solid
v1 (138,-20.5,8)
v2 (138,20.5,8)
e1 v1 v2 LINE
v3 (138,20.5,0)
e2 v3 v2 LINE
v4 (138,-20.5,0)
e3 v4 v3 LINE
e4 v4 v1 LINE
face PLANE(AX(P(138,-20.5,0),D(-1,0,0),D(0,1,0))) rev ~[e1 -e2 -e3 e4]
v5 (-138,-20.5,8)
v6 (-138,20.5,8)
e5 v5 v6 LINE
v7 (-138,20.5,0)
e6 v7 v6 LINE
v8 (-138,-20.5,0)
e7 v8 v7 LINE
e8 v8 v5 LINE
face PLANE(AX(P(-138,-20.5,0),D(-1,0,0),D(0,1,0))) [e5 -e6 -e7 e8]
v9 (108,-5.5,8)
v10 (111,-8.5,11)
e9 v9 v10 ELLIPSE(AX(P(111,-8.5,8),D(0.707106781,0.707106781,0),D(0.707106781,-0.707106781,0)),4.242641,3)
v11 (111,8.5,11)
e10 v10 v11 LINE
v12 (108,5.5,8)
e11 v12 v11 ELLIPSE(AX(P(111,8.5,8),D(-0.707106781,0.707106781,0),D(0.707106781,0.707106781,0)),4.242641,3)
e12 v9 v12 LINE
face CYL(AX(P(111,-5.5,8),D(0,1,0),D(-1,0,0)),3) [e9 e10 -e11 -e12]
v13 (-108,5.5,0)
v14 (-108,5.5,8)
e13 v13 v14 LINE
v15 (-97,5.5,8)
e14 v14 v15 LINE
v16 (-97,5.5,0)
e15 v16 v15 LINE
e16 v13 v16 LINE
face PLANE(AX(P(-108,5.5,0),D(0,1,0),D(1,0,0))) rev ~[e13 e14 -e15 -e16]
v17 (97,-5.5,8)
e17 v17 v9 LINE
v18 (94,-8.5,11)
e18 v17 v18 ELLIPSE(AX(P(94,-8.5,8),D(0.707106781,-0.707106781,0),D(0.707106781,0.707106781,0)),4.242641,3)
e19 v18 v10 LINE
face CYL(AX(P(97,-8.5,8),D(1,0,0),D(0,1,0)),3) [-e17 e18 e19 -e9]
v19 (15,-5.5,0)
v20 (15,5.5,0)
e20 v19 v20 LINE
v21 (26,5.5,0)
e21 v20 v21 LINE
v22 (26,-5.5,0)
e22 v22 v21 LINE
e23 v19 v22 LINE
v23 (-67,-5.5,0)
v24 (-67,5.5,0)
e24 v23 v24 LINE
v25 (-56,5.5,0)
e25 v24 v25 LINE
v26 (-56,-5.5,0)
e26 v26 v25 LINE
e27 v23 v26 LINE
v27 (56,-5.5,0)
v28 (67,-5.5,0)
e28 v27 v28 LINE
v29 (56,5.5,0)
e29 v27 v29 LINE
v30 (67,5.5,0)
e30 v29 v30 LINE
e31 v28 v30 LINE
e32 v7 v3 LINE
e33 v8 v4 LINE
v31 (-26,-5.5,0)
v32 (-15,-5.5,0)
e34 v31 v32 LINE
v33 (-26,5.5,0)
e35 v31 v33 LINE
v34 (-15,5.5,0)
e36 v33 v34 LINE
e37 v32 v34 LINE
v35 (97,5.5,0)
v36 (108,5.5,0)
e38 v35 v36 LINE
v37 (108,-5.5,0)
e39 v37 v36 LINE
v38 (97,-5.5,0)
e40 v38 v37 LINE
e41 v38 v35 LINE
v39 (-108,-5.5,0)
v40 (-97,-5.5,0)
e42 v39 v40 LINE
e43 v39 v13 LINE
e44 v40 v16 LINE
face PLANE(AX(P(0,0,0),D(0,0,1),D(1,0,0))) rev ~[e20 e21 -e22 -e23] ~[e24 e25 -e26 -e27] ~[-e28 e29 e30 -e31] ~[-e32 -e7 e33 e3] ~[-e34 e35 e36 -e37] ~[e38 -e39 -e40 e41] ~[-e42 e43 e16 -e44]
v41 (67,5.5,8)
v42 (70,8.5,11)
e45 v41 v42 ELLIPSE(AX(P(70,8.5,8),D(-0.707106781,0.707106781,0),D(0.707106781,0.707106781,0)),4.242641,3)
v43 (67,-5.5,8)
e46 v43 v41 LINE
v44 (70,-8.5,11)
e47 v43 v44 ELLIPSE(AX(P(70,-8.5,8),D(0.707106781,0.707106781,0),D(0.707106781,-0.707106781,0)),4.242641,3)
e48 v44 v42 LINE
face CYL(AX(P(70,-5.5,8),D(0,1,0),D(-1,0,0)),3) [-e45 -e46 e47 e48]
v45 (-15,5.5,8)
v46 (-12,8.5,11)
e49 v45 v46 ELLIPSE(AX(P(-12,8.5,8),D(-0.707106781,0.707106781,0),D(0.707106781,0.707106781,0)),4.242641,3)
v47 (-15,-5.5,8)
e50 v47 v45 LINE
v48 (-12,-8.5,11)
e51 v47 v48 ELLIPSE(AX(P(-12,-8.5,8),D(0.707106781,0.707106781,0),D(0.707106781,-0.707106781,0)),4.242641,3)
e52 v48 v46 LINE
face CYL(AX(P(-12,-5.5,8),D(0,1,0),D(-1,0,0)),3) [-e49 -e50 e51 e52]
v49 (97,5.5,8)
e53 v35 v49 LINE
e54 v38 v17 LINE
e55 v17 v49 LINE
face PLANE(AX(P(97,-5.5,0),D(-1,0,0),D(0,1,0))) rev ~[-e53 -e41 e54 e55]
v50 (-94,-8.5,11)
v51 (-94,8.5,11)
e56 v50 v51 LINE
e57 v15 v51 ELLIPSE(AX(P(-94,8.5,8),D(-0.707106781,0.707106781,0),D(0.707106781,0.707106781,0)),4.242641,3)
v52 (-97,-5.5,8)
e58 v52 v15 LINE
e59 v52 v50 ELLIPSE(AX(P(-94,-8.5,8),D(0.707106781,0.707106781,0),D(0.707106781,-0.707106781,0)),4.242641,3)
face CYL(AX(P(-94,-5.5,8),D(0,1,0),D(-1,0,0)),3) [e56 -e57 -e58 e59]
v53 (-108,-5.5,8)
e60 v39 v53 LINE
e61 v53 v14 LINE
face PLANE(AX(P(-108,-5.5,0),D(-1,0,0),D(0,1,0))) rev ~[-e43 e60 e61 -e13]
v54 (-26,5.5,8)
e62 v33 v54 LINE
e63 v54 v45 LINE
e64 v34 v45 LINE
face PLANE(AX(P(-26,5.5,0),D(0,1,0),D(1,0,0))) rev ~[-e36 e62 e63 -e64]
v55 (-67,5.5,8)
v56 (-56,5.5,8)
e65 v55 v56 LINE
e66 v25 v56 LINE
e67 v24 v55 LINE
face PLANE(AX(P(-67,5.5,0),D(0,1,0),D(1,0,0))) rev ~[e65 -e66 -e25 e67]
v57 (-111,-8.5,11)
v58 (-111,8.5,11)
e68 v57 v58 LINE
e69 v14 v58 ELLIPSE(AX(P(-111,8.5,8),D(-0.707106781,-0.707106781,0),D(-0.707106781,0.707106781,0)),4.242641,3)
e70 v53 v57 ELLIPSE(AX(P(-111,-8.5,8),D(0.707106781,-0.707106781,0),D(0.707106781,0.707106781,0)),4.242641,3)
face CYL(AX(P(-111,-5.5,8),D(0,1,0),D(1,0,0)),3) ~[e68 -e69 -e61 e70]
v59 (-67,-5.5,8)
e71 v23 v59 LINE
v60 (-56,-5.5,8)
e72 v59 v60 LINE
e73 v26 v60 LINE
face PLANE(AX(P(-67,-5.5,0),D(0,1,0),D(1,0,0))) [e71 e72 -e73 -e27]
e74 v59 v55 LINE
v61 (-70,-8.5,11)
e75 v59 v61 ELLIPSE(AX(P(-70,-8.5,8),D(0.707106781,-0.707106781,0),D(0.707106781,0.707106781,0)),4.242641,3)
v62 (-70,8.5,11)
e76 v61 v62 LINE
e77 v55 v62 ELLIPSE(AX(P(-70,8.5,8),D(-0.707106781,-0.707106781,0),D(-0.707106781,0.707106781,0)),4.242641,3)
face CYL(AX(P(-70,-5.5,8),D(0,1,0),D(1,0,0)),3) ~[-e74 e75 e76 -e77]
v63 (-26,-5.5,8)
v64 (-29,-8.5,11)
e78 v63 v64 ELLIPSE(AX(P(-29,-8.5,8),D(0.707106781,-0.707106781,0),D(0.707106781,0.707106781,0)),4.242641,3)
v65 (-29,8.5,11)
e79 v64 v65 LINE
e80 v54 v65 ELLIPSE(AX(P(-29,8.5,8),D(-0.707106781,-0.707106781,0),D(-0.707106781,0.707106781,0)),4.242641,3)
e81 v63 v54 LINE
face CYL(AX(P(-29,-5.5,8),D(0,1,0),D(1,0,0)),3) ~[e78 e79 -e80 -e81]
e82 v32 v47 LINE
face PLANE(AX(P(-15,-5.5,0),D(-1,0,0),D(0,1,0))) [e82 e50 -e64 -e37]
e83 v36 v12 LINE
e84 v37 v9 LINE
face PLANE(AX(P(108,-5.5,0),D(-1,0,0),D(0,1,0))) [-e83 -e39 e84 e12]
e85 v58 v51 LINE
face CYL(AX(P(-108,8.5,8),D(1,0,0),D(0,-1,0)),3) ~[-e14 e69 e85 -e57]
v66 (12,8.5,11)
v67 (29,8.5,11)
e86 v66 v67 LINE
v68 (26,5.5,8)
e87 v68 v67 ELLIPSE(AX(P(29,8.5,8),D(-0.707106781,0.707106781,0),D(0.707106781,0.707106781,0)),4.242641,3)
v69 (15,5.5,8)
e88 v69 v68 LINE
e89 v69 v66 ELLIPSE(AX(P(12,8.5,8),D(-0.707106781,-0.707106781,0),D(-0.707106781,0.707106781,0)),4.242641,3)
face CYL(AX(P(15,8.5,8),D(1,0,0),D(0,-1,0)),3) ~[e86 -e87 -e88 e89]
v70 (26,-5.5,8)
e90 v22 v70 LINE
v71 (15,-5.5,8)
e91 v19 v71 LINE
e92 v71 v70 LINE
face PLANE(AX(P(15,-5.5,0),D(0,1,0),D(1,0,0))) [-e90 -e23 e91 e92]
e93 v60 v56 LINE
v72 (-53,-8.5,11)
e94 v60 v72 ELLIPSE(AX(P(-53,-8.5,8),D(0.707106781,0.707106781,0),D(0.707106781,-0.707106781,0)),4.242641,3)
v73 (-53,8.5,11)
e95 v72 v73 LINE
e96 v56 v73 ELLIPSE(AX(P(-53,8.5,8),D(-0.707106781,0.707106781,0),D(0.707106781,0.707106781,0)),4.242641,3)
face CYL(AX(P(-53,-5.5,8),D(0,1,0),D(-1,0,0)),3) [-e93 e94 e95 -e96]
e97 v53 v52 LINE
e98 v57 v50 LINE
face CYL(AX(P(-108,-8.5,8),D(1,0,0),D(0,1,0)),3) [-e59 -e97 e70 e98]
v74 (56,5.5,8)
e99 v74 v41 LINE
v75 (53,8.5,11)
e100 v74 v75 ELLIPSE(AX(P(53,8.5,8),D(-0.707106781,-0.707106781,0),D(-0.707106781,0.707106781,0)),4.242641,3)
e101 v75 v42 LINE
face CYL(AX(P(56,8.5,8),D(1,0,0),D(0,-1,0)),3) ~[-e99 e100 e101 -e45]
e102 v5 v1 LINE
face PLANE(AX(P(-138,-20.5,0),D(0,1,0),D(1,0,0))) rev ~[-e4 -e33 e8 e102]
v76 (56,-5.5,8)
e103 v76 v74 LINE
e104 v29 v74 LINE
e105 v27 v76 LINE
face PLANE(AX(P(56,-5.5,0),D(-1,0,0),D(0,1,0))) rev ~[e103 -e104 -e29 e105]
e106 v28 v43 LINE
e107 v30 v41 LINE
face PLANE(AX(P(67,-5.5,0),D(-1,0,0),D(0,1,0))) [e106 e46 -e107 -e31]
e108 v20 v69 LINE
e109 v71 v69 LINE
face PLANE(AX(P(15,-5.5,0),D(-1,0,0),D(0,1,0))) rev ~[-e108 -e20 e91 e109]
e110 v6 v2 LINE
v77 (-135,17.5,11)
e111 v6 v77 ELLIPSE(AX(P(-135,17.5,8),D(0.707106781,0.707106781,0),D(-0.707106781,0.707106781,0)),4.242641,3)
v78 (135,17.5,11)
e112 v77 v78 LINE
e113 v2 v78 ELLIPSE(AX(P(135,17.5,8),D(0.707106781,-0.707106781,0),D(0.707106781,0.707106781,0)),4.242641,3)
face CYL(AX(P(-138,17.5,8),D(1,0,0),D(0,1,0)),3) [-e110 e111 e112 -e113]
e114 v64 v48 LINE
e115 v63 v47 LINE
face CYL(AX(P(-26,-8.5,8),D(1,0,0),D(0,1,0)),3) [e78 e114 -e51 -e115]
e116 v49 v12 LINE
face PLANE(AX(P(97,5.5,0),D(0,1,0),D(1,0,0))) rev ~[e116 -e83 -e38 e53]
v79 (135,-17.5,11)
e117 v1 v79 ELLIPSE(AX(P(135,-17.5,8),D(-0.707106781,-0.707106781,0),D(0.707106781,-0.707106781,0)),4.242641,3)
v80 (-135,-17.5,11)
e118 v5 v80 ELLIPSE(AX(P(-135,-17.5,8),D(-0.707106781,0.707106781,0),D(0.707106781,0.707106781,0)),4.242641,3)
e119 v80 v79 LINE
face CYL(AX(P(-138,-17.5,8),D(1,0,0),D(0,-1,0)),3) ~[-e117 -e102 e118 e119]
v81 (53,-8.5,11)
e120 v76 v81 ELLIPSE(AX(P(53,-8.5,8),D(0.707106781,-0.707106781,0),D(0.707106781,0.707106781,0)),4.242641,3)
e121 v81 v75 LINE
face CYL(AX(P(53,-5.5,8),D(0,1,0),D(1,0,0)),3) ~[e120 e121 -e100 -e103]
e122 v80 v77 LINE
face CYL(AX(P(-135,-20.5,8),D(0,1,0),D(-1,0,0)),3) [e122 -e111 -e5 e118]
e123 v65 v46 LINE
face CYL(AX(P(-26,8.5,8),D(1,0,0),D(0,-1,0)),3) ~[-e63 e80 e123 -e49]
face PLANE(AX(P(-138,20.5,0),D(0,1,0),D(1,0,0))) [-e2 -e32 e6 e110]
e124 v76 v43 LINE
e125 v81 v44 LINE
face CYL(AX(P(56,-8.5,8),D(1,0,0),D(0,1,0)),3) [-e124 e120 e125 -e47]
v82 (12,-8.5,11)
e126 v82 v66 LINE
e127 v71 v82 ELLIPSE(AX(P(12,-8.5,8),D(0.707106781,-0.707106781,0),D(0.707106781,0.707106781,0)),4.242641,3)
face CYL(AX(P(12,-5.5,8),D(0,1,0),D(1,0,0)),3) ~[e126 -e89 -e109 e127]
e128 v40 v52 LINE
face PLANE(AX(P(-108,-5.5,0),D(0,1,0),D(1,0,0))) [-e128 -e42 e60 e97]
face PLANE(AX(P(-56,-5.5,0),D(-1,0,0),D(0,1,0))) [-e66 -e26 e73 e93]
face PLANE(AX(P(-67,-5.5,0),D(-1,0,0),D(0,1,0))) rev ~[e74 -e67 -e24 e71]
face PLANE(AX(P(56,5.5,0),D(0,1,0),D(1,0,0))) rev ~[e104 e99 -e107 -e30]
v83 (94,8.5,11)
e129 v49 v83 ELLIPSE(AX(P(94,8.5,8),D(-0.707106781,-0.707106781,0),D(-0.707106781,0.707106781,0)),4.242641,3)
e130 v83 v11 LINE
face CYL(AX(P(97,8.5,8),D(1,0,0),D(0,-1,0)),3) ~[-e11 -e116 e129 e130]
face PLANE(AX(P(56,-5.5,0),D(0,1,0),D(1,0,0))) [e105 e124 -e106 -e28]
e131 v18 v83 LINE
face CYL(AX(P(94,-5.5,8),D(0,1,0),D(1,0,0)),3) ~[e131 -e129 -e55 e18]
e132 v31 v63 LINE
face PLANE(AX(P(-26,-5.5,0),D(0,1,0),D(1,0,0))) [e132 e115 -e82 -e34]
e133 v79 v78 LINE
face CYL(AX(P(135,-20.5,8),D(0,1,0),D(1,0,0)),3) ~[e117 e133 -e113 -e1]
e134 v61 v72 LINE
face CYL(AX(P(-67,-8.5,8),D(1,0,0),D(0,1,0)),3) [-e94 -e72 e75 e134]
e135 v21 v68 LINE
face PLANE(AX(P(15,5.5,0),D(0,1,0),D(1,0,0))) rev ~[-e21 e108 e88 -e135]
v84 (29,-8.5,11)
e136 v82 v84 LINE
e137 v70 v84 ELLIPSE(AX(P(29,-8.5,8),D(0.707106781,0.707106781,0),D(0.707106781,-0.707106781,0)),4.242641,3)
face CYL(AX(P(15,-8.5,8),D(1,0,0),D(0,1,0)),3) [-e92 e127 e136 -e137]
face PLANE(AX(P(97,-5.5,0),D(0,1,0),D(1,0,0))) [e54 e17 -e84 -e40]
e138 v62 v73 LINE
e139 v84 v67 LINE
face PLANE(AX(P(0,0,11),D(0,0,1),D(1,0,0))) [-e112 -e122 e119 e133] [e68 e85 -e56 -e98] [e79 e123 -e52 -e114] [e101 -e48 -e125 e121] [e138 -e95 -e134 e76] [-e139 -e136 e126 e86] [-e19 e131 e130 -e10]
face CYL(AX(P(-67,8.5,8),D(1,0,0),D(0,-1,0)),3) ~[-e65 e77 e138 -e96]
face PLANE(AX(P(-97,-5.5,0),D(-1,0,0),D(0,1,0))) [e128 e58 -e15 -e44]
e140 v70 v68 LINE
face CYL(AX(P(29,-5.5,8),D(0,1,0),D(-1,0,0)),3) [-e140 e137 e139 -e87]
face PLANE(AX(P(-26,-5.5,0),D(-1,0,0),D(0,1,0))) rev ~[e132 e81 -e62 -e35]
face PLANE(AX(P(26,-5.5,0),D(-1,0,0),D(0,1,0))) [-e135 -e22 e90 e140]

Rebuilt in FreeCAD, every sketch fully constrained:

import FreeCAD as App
import Part
import Sketcher

V = App.Vector


def edges_at(feature, points):
    """Names of the edges that pass closest to the given points."""
    edges = feature.Shape.Edges
    near = lambda p: min(range(len(edges)), key=lambda i: edges[i].distToShape(Part.Vertex(*p))[0])
    return sorted({f"Edge{near(p) + 1}" for p in points})


def add_polygon(sketch, points):
    """Adds a closed chain of lines whose ends are joined by coincident constraints."""
    first, n = sketch.GeometryCount, len(points)
    for a, b in zip(points, points[1:] + points[:1]):
        sketch.addGeometry(Part.LineSegment(App.Vector(*a, 0), App.Vector(*b, 0)), False)
    for i in range(n):
        sketch.addConstraint(Sketcher.Constraint("Coincident", first + i, 2, first + (i + 1) % n, 1))

doc = App.newDocument("Part")
body = doc.addObject("PartDesign::Body", "Body")

sketch1 = body.newObject("Sketcher::SketchObject", "Sketch")
sketch1.AttachmentSupport = (doc.getObject("XY_Plane"), [""])
sketch1.MapMode = "FlatFace"
add_polygon(sketch1, [(-138, 20.5), (-138, -20.5), (138, -20.5), (138, 20.5)])
add_polygon(sketch1, [(-97, -5.5), (-108, -5.5), (-108, 5.5), (-97, 5.5)])
add_polygon(sketch1, [(-56, -5.5), (-67, -5.5), (-67, 5.5), (-56, 5.5)])
add_polygon(sketch1, [(-15, -5.5), (-26, -5.5), (-26, 5.5), (-15, 5.5)])
add_polygon(sketch1, [(26, -5.5), (15, -5.5), (15, 5.5), (26, 5.5)])
add_polygon(sketch1, [(67, -5.5), (56, -5.5), (56, 5.5), (67, 5.5)])
add_polygon(sketch1, [(108, -5.5), (97, -5.5), (97, 5.5), (108, 5.5)])
sketch1.addConstraint([
    Sketcher.Constraint("Vertical", 0),
    Sketcher.Constraint("Horizontal", 1),
    Sketcher.Constraint("Vertical", 2),
    Sketcher.Constraint("Horizontal", 3),
    Sketcher.Constraint("Horizontal", 4),
    Sketcher.Constraint("Vertical", 5),
    Sketcher.Constraint("Horizontal", 6),
    Sketcher.Constraint("Vertical", 7),
    Sketcher.Constraint("Horizontal", 8),
    Sketcher.Constraint("Vertical", 9),
    Sketcher.Constraint("Horizontal", 10),
    Sketcher.Constraint("Vertical", 11),
    Sketcher.Constraint("Horizontal", 12),
    Sketcher.Constraint("Vertical", 13),
    Sketcher.Constraint("Horizontal", 14),
    Sketcher.Constraint("Vertical", 15),
    Sketcher.Constraint("Horizontal", 16),
    Sketcher.Constraint("Vertical", 17),
    Sketcher.Constraint("Horizontal", 18),
    Sketcher.Constraint("Vertical", 19),
    Sketcher.Constraint("Horizontal", 20),
    Sketcher.Constraint("Vertical", 21),
    Sketcher.Constraint("Horizontal", 22),
    Sketcher.Constraint("Vertical", 23),
    Sketcher.Constraint("Horizontal", 24),
    Sketcher.Constraint("Vertical", 25),
    Sketcher.Constraint("Horizontal", 26),
    Sketcher.Constraint("Vertical", 27),
    Sketcher.Constraint("Symmetric", 0, 2, 2, 2, -1, 1),
    Sketcher.Constraint("Symmetric", 14, 2, 16, 2, -1, 1),
    Sketcher.Constraint("Symmetric", 12, 2, 18, 2, -1, 1),
    Sketcher.Constraint("Symmetric", 10, 2, 20, 2, -1, 1),
    Sketcher.Constraint("Symmetric", 8, 2, 22, 2, -1, 1),
    Sketcher.Constraint("Symmetric", 6, 2, 24, 2, -1, 1),
    Sketcher.Constraint("Symmetric", 4, 2, 26, 2, -1, 1),
    Sketcher.Constraint("Horizontal", 7, 2, 8, 2),
    Sketcher.Constraint("Horizontal", 6, 2, 9, 2),
    Sketcher.Constraint("Horizontal", 11, 2, 12, 2),
    Sketcher.Constraint("Horizontal", 10, 2, 13, 2),
    Sketcher.Constraint("Horizontal", 15, 2, 16, 2),
    Sketcher.Constraint("Equal", 6, 8),
    Sketcher.Constraint("Equal", 10, 12),
    Sketcher.Constraint("Equal", 26, 5),
    Sketcher.Constraint("DistanceX", 1, 1, 1, 2, 276.0),
    Sketcher.Constraint("DistanceX", 4, 2, 4, 1, 11.0),
    Sketcher.Constraint("DistanceY", 0, 2, 0, 1, 41.0),
    Sketcher.Constraint("DistanceX", 4, 2, -1, 1, 108.0),
    Sketcher.Constraint("DistanceX", 8, 2, -1, 1, 67.0),
    Sketcher.Constraint("DistanceX", 12, 2, -1, 1, 26.0),
])
pad1 = body.newObject("PartDesign::Pad", "Pad")
pad1.Profile = sketch1
pad1.Length = 11
doc.recompute()

fillet = body.newObject("PartDesign::Fillet", "Fillet")
fillet.Base = (pad1, edges_at(pad1, [
    (-138, 0, 11),
    (0, -20.5, 11),
    (138, 0, 11),
    (0, 20.5, 11),
    (97, 0, 11),
    (102.5, -5.5, 11),
    (108, 0, 11),
    (102.5, 5.5, 11),
    (56, 0, 11),
    (61.5, -5.5, 11),
    (67, 0, 11),
    (61.5, 5.5, 11),
    (15, 0, 11),
    (20.5, -5.5, 11),
    (26, 0, 11),
    (20.5, 5.5, 11),
    (-26, 0, 11),
    (-20.5, -5.5, 11),
    (-15, 0, 11),
    (-20.5, 5.5, 11),
    (-67, 0, 11),
    (-61.5, -5.5, 11),
    (-56, 0, 11),
    (-61.5, 5.5, 11),
    (-108, 0, 11),
    (-102.5, -5.5, 11),
    (-97, 0, 11),
    (-102.5, 5.5, 11),
]))
fillet.Radius = 3

doc.recompute()
